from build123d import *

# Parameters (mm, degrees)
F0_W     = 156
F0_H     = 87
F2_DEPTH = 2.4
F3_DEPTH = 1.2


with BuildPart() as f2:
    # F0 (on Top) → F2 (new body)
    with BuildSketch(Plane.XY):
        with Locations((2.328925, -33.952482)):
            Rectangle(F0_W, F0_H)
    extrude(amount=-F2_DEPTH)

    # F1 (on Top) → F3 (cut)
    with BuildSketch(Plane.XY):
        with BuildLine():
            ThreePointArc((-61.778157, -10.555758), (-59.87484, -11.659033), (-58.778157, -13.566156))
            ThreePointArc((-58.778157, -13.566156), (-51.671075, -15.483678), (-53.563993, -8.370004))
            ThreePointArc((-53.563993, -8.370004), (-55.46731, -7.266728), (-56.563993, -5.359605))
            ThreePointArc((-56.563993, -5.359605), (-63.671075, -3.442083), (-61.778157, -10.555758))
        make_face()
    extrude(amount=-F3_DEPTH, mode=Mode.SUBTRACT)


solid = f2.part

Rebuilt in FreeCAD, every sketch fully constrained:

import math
import FreeCAD as App
import Part
import Sketcher


def add_polygon(sketch, points):
    """Adds a closed chain of lines whose ends are joined by coincident constraints."""
    first, n = sketch.GeometryCount, len(points)
    for a, b in zip(points, points[1:] + points[:1]):
        sketch.addGeometry(Part.LineSegment(App.Vector(*a, 0), App.Vector(*b, 0)), False)
    for i in range(n):
        sketch.addConstraint(Sketcher.Constraint("Coincident", first + i, 2, first + (i + 1) % n, 1))

doc = App.newDocument("Part")
body = doc.addObject("PartDesign::Body", "Body")

# Sketch on XY plane
sketch1 = body.newObject("Sketcher::SketchObject", "Sketch")
sketch1.AttachmentSupport = (doc.getObject("XY_Plane"), [""])
sketch1.MapMode = "FlatFace"
add_polygon(sketch1, [(-76, 10), (-76, -77), (80, -77), (80, 10)])  # lines 0-3
sketch1.addConstraint([
    Sketcher.Constraint("Vertical", 0),
    Sketcher.Constraint("Horizontal", 1),
    Sketcher.Constraint("Vertical", 2),
    Sketcher.Constraint("Horizontal", 3),
    Sketcher.Constraint("DistanceX", 1, 1, 1, 2, 156.0),
    Sketcher.Constraint("DistanceY", 0, 2, 0, 1, 87.0),
    Sketcher.Constraint("DistanceX", 0, 2, -1, 1, 75.671075),
    Sketcher.Constraint("DistanceY", 0, 2, -1, 1, 77.452482),
])
pad1 = body.newObject("PartDesign::Pad", "Pad")
pad1.Profile = sketch1
pad1.Length = 2.4
pad1.Reversed = True

# Sketch on XY plane
sketch2 = body.newObject("Sketcher::SketchObject", "Sketch001")
sketch2.AttachmentSupport = (doc.getObject("XY_Plane"), [""])
sketch2.MapMode = "FlatFace"
sketch2.addGeometry([
    Part.ArcOfCircle(Part.Circle(App.Vector(-62.9, -14.7, 0), App.Vector(0, 0, 1), 4.2), math.radians(15), math.radians(75)),
    Part.ArcOfCircle(Part.Circle(App.Vector(-54.7, -12.5, 0), App.Vector(0, 0, 1), 4.3), math.radians(-165), math.radians(75)),
    Part.ArcOfCircle(Part.Circle(App.Vector(-52.5, -4.3, 0), App.Vector(0, 0, 1), 4.3), math.radians(-165), math.radians(-105)),
    Part.ArcOfCircle(Part.Circle(App.Vector(-60.7, -6.5, 0), App.Vector(0, 0, 1), 4.3), math.radians(15), math.radians(255)),
], False)
sketch2.addConstraint([
    Sketcher.Constraint("Tangent", 0, 1, 1, 1),
    Sketcher.Constraint("Tangent", 1, 2, 2, 2),
    Sketcher.Constraint("Tangent", 2, 1, 3, 1),
    Sketcher.Constraint("Tangent", 3, 2, 0, 2),
    Sketcher.Constraint("Equal", 1, 2),
    Sketcher.Constraint("Equal", 2, 3),
    Sketcher.Constraint("Radius", 1, 4.25),
    Sketcher.Constraint("DistanceX", 3, 3, 1, 3, 6.0),
    Sketcher.Constraint("DistanceX", 3, 2, 0, 1, 3.0),
    Sketcher.Constraint("DistanceY", 1, 2, 2, 1, 3.010399),
    Sketcher.Constraint("DistanceY", 0, 3, -1, 1, 14.659032),
    Sketcher.Constraint("DistanceX", 2, 3, -1, 1, 52.45691),
])
pocket1 = body.newObject("PartDesign::Pocket", "Pocket")
pocket1.Profile = sketch2
pocket1.Length = 1.2

doc.recompute()
